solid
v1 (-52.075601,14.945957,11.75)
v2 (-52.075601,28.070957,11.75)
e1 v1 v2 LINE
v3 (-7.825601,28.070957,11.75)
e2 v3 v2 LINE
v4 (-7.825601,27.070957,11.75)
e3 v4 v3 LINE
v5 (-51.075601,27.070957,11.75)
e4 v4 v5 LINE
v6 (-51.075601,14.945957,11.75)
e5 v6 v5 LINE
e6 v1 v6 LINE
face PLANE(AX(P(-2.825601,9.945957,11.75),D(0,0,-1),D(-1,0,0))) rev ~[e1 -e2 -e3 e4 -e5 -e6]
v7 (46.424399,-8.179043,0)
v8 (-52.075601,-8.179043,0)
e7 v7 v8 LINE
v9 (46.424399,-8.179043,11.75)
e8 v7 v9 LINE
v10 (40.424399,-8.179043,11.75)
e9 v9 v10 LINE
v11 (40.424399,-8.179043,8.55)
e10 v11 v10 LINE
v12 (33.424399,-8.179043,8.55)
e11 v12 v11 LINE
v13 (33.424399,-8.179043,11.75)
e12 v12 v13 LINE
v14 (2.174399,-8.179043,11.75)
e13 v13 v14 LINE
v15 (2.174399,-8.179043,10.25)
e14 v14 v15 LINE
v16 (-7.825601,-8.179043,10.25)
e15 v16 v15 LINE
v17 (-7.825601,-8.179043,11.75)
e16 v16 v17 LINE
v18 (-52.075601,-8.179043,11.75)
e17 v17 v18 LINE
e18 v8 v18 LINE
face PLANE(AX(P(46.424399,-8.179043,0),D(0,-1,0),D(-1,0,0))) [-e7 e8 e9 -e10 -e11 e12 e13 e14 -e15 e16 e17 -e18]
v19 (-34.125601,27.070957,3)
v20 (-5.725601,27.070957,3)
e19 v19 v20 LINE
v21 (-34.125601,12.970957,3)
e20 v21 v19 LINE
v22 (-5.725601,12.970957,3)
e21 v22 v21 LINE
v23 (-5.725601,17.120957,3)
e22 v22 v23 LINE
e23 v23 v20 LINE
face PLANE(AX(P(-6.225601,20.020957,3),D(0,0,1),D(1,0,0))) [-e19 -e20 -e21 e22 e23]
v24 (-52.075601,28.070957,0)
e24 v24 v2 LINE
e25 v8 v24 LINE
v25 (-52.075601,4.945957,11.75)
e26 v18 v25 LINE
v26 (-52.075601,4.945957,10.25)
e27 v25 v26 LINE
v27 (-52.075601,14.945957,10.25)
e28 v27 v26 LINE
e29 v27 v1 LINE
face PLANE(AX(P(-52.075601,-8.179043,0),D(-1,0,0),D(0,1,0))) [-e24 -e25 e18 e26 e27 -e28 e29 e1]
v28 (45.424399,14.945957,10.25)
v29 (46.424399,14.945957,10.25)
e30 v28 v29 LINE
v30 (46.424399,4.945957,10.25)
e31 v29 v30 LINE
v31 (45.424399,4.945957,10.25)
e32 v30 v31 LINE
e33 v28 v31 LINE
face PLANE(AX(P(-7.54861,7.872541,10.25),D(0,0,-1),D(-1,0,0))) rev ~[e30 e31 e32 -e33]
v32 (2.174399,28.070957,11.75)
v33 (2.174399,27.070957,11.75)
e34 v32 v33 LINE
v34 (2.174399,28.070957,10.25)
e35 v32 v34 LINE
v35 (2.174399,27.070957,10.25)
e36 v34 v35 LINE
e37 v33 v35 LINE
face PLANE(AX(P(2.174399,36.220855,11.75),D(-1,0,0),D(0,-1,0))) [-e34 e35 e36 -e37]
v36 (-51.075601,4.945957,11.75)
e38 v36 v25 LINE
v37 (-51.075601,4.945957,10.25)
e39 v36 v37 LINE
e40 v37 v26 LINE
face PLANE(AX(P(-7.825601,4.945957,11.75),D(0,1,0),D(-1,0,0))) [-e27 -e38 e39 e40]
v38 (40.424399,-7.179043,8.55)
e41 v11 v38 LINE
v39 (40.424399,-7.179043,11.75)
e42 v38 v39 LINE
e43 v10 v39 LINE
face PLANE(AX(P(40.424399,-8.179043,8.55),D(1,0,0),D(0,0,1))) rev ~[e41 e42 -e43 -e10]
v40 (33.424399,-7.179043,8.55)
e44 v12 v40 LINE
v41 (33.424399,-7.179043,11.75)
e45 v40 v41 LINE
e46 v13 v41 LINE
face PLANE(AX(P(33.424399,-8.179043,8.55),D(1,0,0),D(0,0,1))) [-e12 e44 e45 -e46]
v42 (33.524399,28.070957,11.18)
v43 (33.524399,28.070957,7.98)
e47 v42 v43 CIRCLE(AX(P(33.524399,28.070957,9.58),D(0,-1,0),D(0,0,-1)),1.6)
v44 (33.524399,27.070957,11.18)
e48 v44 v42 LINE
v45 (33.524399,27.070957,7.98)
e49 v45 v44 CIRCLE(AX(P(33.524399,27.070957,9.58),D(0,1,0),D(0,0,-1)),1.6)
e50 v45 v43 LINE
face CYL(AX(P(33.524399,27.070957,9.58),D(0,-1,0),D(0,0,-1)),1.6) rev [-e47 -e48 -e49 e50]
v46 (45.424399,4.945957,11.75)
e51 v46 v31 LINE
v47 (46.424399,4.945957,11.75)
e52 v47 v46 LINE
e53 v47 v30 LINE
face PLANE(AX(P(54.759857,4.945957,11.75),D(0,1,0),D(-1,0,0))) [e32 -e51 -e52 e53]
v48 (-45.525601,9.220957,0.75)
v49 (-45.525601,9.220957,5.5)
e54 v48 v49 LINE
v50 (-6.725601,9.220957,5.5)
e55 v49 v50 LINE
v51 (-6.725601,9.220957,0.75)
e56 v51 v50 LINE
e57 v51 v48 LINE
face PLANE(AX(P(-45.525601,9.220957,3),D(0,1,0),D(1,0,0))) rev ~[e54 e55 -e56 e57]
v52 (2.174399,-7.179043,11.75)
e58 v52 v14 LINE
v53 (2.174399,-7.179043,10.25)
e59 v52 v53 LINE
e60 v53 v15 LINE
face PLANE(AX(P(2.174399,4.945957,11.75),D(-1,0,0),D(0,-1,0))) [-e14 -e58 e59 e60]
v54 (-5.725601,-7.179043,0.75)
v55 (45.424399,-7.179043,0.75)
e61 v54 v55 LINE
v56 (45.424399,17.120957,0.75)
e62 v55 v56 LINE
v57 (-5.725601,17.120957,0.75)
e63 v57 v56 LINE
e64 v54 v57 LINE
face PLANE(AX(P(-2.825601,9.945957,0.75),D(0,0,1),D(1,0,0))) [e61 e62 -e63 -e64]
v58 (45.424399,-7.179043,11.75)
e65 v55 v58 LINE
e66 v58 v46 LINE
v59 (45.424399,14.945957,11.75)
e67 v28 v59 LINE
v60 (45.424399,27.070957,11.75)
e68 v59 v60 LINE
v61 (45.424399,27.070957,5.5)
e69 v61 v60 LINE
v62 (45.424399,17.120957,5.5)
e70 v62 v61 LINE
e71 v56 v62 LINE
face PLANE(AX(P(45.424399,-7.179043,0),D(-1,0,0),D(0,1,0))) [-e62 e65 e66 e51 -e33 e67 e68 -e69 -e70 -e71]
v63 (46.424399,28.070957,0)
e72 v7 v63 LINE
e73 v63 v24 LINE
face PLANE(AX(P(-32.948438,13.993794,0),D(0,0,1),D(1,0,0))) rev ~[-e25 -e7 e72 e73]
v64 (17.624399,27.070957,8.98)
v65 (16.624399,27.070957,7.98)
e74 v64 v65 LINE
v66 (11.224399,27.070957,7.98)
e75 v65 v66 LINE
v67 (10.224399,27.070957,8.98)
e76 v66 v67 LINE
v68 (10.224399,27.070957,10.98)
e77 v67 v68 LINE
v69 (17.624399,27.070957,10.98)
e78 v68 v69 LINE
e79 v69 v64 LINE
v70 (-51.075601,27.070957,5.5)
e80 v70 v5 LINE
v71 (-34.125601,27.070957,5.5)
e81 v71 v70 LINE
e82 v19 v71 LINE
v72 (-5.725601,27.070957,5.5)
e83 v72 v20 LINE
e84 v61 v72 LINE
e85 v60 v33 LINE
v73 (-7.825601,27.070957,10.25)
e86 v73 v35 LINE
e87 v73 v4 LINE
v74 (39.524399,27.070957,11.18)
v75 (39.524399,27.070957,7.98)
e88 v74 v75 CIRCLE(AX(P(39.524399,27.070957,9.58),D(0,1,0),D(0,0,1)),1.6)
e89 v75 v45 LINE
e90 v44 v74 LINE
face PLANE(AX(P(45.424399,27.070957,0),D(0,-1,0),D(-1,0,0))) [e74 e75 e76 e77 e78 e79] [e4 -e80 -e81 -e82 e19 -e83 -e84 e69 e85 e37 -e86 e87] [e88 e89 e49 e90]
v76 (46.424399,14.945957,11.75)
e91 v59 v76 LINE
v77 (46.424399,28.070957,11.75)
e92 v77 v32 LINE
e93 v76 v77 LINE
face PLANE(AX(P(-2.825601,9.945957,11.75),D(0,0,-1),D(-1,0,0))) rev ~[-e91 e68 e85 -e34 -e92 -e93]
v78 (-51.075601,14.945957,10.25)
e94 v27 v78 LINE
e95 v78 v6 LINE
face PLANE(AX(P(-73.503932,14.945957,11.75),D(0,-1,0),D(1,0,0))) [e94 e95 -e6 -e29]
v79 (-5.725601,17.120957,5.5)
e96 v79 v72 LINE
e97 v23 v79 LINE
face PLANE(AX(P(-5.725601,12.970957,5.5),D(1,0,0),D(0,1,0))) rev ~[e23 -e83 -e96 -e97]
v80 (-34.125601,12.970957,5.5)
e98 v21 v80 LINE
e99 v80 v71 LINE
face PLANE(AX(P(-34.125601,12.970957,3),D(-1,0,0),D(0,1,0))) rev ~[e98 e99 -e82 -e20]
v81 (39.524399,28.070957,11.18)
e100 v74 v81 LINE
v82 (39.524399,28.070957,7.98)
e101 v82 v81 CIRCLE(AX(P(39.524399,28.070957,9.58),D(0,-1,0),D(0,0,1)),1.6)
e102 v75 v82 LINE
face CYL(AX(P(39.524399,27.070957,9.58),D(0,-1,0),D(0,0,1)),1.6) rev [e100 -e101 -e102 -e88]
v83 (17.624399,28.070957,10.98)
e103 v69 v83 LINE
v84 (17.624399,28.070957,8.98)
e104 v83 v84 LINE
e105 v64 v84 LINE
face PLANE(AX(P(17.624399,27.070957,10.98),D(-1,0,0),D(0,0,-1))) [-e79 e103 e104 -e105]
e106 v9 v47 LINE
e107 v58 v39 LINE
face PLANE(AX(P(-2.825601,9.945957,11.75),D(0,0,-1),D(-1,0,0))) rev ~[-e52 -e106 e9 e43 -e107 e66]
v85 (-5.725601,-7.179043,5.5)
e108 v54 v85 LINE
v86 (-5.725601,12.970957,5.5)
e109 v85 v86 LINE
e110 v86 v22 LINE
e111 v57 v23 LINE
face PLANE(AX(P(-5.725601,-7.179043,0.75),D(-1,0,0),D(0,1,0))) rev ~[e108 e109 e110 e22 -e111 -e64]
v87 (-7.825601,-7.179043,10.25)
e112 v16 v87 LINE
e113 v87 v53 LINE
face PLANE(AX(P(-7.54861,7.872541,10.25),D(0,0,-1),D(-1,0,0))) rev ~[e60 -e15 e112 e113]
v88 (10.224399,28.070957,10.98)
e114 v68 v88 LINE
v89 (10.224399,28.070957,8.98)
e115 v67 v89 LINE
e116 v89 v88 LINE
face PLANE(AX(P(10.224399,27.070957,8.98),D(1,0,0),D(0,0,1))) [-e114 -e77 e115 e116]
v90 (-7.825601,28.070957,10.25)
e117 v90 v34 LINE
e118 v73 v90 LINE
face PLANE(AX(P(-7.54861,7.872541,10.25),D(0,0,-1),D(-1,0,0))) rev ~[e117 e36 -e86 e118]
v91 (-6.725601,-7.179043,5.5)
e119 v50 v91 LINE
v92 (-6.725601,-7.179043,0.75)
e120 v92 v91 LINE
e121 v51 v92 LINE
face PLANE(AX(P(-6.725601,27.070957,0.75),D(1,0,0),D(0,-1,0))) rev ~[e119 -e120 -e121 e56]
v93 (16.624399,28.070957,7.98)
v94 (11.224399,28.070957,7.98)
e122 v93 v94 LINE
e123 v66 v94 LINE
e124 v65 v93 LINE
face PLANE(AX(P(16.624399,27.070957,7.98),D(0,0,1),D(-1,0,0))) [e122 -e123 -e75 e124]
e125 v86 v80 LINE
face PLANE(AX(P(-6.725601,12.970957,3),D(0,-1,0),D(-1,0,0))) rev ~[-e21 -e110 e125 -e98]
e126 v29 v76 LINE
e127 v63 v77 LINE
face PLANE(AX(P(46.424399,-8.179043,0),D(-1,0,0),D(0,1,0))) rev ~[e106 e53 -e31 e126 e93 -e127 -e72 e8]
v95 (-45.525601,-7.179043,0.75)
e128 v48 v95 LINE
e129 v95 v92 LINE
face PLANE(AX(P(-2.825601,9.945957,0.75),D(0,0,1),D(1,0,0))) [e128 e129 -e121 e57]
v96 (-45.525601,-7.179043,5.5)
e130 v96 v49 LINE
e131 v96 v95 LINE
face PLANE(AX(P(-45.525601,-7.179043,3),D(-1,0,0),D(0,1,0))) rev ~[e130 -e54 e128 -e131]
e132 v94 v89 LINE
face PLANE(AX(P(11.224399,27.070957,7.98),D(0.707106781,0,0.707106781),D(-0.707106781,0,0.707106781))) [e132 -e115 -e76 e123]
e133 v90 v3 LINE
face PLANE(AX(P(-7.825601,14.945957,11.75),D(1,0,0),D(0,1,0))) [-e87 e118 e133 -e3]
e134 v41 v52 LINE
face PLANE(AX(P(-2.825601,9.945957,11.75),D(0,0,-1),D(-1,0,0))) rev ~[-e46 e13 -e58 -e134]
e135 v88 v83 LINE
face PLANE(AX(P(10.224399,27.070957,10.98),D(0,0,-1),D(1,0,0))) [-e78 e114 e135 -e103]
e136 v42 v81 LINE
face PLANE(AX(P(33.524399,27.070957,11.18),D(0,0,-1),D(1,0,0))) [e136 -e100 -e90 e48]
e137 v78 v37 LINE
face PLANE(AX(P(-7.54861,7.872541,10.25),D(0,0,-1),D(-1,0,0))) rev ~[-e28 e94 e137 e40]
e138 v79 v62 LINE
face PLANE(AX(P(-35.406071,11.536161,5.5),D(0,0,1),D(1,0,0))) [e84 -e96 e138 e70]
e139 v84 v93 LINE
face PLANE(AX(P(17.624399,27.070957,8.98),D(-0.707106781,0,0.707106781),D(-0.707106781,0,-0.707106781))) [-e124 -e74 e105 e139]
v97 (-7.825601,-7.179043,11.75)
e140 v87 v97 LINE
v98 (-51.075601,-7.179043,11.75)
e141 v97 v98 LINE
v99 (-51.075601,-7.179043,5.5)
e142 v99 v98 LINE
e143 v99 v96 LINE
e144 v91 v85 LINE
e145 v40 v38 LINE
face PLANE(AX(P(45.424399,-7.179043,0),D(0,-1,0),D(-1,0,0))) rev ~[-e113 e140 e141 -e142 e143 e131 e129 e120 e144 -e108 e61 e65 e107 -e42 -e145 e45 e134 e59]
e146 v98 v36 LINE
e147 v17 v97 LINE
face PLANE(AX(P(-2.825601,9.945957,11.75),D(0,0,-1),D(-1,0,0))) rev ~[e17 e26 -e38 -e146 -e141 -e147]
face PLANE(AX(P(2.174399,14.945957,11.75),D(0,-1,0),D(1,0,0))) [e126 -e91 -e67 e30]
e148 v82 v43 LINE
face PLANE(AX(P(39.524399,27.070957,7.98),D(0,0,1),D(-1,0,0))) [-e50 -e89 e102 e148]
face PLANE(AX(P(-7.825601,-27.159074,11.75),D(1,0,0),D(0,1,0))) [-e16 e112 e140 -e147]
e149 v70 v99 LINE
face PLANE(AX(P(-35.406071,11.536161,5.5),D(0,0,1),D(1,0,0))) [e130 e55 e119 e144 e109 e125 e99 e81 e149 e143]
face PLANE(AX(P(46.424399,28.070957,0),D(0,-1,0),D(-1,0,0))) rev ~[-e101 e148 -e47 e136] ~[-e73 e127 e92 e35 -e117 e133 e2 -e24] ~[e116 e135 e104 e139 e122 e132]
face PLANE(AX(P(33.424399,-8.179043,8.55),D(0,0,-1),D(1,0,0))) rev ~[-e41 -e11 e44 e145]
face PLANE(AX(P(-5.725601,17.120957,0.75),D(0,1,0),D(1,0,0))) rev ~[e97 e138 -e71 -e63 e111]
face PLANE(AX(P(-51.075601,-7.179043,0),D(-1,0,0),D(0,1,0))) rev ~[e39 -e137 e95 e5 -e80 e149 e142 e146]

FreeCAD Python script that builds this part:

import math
import FreeCAD as App
import Part
import Sketcher
Q = App.Units.Quantity

doc = App.newDocument("Part")
params = doc.addObject("Spreadsheet::Sheet", "Params")
for row, (alias, value) in enumerate([
    ("sketch1_width", "96.5 mm"),
    ("sketch1_height", "34.25 mm"),
    ("pad1_length", "0.75 mm"),
    ("sketch2_width", "98.5 mm"),
    ("sketch2_width2", "96.5 mm"),
    ("sketch2_height", "36.25 mm"),
    ("pad2_length", "11.75 mm"),
    ("sketch3_width", "1 mm"),
    ("sketch3_height", "24.3 mm"),
    ("sketch3_width2", "51.15 mm"),
    ("sketch3_height2", "9.95 mm"),
    ("pad3_length", "4.75 mm"),
    ("sketch4_width", "38.8 mm"),
    ("sketch4_height", "16.4 mm"),
    ("sketch4_width2", "44.35 mm"),
    ("sketch4_height2", "17.85 mm"),
    ("pad4_length", "3 mm"),
    ("sketch5_width", "38.8 mm"),
    ("sketch5_width2", "27.4 mm"),
    ("sketch5_height", "16.4 mm"),
    ("sketch5_height2", "14.1 mm"),
    ("sketch5_width3", "16.95 mm"),
    ("pad5_length", "2.5 mm"),
    ("sketch6_width", "1 mm"),
    ("sketch6_height", "14.1 mm"),
    ("pocket1_length", "2.5 mm"),
    ("sketch7_radius", "1.6 mm"),
    ("sketch7_width", "6 mm"),
    ("sketch7_height", "2 mm"),
    ("sketch7_width2", "7.4 mm"),
    ("sketch7_width3", "5.4 mm"),
    ("pocket2_length", "2.5 mm"),
    ("sketch8_width", "10 mm"),
    ("pocket3_length", "1.5 mm"),
    ("sketch9_width", "7 mm"),
    ("sketch9_height", "3.2 mm"),
    ("pocket4_length", "10 mm"),
], start=1):
    params.set(f"A{row}", alias)
    params.set(f"B{row}", "=" + value)
    params.setAlias(f"B{row}", alias)

body = doc.addObject("PartDesign::Body", "Body")

sketch1 = body.newObject("Sketcher::SketchObject", "Sketch")
sketch1.AttachmentSupport = (doc.getObject("XY_Plane"), [""])
sketch1.MapMode = "FlatFace"
sketch1.addGeometry(Part.LineSegment(App.Vector(-51, 27, 0), App.Vector(-51, -7, 0)), False)
sketch1.addGeometry(Part.LineSegment(App.Vector(-51, -7, 0), App.Vector(45, -7, 0)), False)
sketch1.addGeometry(Part.LineSegment(App.Vector(45, -7, 0), App.Vector(45, 27, 0)), False)
sketch1.addGeometry(Part.LineSegment(App.Vector(45, 27, 0), App.Vector(-51, 27, 0)), False)
sketch1.addConstraint(Sketcher.Constraint("Coincident", 0, 2, 1, 1))
sketch1.addConstraint(Sketcher.Constraint("Coincident", 1, 2, 2, 1))
sketch1.addConstraint(Sketcher.Constraint("Coincident", 2, 2, 3, 1))
sketch1.addConstraint(Sketcher.Constraint("Coincident", 3, 2, 0, 1))
sketch1.addConstraint(Sketcher.Constraint("Vertical", 0))
sketch1.addConstraint(Sketcher.Constraint("Horizontal", 1))
sketch1.addConstraint(Sketcher.Constraint("Vertical", 2))
sketch1.addConstraint(Sketcher.Constraint("Horizontal", 3))
sketch1.addConstraint(Sketcher.Constraint("DistanceX", 1, 1, 1, 2, Q("96.5 mm")))
sketch1.addConstraint(Sketcher.Constraint("DistanceY", 0, 2, 0, 1, Q("34.25 mm")))
sketch1.addConstraint(Sketcher.Constraint("DistanceX", 0, 2, -1, 1, Q("51.075601 mm")))
sketch1.addConstraint(Sketcher.Constraint("DistanceY", 0, 2, -1, 1, Q("7.179043 mm")))
sketch1.setExpression("Constraints[8]", "Params.sketch1_width")
sketch1.setExpression("Constraints[9]", "Params.sketch1_height")
pad1 = body.newObject("PartDesign::Pad", "Pad")
pad1.Profile = sketch1
pad1.setExpression("Length", "Params.pad1_length")

sketch2 = body.newObject("Sketcher::SketchObject", "Sketch001")
sketch2.AttachmentSupport = (doc.getObject("XY_Plane"), [""])
sketch2.MapMode = "FlatFace"
sketch2.addGeometry(Part.LineSegment(App.Vector(46, 28, 0), App.Vector(46, -8, 0)), False)
sketch2.addGeometry(Part.LineSegment(App.Vector(46, -8, 0), App.Vector(-52, -8, 0)), False)
sketch2.addGeometry(Part.LineSegment(App.Vector(-52, -8, 0), App.Vector(-52, 28, 0)), False)
sketch2.addGeometry(Part.LineSegment(App.Vector(-52, 28, 0), App.Vector(46, 28, 0)), False)
sketch2.addGeometry(Part.LineSegment(App.Vector(-51, -7, 0), App.Vector(45, -7, 0)), False)
sketch2.addGeometry(Part.LineSegment(App.Vector(45, -7, 0), App.Vector(45, 27, 0)), False)
sketch2.addGeometry(Part.LineSegment(App.Vector(45, 27, 0), App.Vector(-51, 27, 0)), False)
sketch2.addGeometry(Part.LineSegment(App.Vector(-51, 27, 0), App.Vector(-51, -7, 0)), False)
sketch2.addConstraint(Sketcher.Constraint("Coincident", 0, 2, 1, 1))
sketch2.addConstraint(Sketcher.Constraint("Coincident", 1, 2, 2, 1))
sketch2.addConstraint(Sketcher.Constraint("Coincident", 2, 2, 3, 1))
sketch2.addConstraint(Sketcher.Constraint("Coincident", 3, 2, 0, 1))
sketch2.addConstraint(Sketcher.Constraint("Coincident", 4, 2, 5, 1))
sketch2.addConstraint(Sketcher.Constraint("Coincident", 5, 2, 6, 1))
sketch2.addConstraint(Sketcher.Constraint("Coincident", 6, 2, 7, 1))
sketch2.addConstraint(Sketcher.Constraint("Coincident", 7, 2, 4, 1))
sketch2.addConstraint(Sketcher.Constraint("Vertical", 0))
sketch2.addConstraint(Sketcher.Constraint("Horizontal", 1))
sketch2.addConstraint(Sketcher.Constraint("Vertical", 2))
sketch2.addConstraint(Sketcher.Constraint("Horizontal", 3))
sketch2.addConstraint(Sketcher.Constraint("Horizontal", 4))
sketch2.addConstraint(Sketcher.Constraint("Vertical", 5))
sketch2.addConstraint(Sketcher.Constraint("Horizontal", 6))
sketch2.addConstraint(Sketcher.Constraint("Vertical", 7))
sketch2.addConstraint(Sketcher.Constraint("DistanceX", 1, 2, 1, 1, Q("98.5 mm")))
sketch2.addConstraint(Sketcher.Constraint("DistanceX", 4, 1, 4, 2, Q("96.5 mm")))
sketch2.addConstraint(Sketcher.Constraint("DistanceX", 4, 2, 0, 2, Q("1 mm")))
sketch2.addConstraint(Sketcher.Constraint("DistanceY", 0, 2, 4, 2, Q("1 mm")))
sketch2.addConstraint(Sketcher.Constraint("DistanceY", 5, 2, 3, 2, Q("1 mm")))
sketch2.addConstraint(Sketcher.Constraint("DistanceY", 0, 2, 0, 1, Q("36.25 mm")))
sketch2.addConstraint(Sketcher.Constraint("DistanceX", -1, 1, 0, 2, Q("46.424399 mm")))
sketch2.addConstraint(Sketcher.Constraint("DistanceY", 0, 2, -1, 1, Q("8.179043 mm")))
sketch2.setExpression("Constraints[16]", "Params.sketch2_width")
sketch2.setExpression("Constraints[17]", "Params.sketch2_width2")
sketch2.setExpression("Constraints[21]", "Params.sketch2_height")
pad2 = body.newObject("PartDesign::Pad", "Pad001")
pad2.Profile = sketch2
pad2.setExpression("Length", "Params.pad2_length")

sketch3 = body.newObject("Sketcher::SketchObject", "Sketch002")
sketch3.AttachmentSupport = (doc.getObject("XY_Plane"), [""])
sketch3.MapMode = "FlatFace"
sketch3.AttachmentOffset = App.Placement(App.Vector(0, 0, 0.75), App.Rotation())
sketch3.addGeometry(Part.LineSegment(App.Vector(-5.7, -7.2, 0), App.Vector(-5.7, 17.1, 0)), False)
sketch3.addGeometry(Part.LineSegment(App.Vector(-5.7, 17.1, 0), App.Vector(45.4, 17.1, 0)), False)
sketch3.addGeometry(Part.LineSegment(App.Vector(45.4, 17.1, 0), App.Vector(45.4, 27.1, 0)), False)
sketch3.addGeometry(Part.LineSegment(App.Vector(45.4, 27.1, 0), App.Vector(-6.7, 27.1, 0)), False)
sketch3.addGeometry(Part.LineSegment(App.Vector(-6.7, 27.1, 0), App.Vector(-6.7, -7.2, 0)), False)
sketch3.addGeometry(Part.LineSegment(App.Vector(-6.7, -7.2, 0), App.Vector(-5.7, -7.2, 0)), False)
sketch3.addConstraint(Sketcher.Constraint("Coincident", 0, 2, 1, 1))
sketch3.addConstraint(Sketcher.Constraint("Coincident", 1, 2, 2, 1))
sketch3.addConstraint(Sketcher.Constraint("Coincident", 2, 2, 3, 1))
sketch3.addConstraint(Sketcher.Constraint("Coincident", 3, 2, 4, 1))
sketch3.addConstraint(Sketcher.Constraint("Coincident", 4, 2, 5, 1))
sketch3.addConstraint(Sketcher.Constraint("Coincident", 5, 2, 0, 1))
sketch3.addConstraint(Sketcher.Constraint("Vertical", 0))
sketch3.addConstraint(Sketcher.Constraint("Horizontal", 1))
sketch3.addConstraint(Sketcher.Constraint("Vertical", 2))
sketch3.addConstraint(Sketcher.Constraint("Horizontal", 3))
sketch3.addConstraint(Sketcher.Constraint("Vertical", 4))
sketch3.addConstraint(Sketcher.Constraint("Horizontal", 5))
sketch3.addConstraint(Sketcher.Constraint("DistanceX", 5, 1, 5, 2, Q("1 mm")))
sketch3.addConstraint(Sketcher.Constraint("DistanceY", 0, 1, 0, 2, Q("24.3 mm")))
sketch3.addConstraint(Sketcher.Constraint("DistanceX", 1, 1, 1, 2, Q("51.15 mm")))
sketch3.addConstraint(Sketcher.Constraint("DistanceY", 2, 1, 2, 2, Q("9.95 mm")))
sketch3.addConstraint(Sketcher.Constraint("DistanceX", 0, 2, -1, 1, Q("5.725601 mm")))
sketch3.addConstraint(Sketcher.Constraint("DistanceY", -1, 1, 0, 2, Q("17.120957 mm")))
sketch3.setExpression("Constraints[12]", "Params.sketch3_width")
sketch3.setExpression("Constraints[13]", "Params.sketch3_height")
sketch3.setExpression("Constraints[14]", "Params.sketch3_width2")
sketch3.setExpression("Constraints[15]", "Params.sketch3_height2")
pad3 = body.newObject("PartDesign::Pad", "Pad002")
pad3.Profile = sketch3
pad3.setExpression("Length", "Params.pad3_length")

sketch4 = body.newObject("Sketcher::SketchObject", "Sketch003")
sketch4.AttachmentSupport = (doc.getObject("XY_Plane"), [""])
sketch4.MapMode = "FlatFace"
sketch4.addGeometry(Part.LineSegment(App.Vector(-7, 9, 0), App.Vector(-7, 27, 0)), False)
sketch4.addGeometry(Part.LineSegment(App.Vector(-7, 27, 0), App.Vector(-51, 27, 0)), False)
sketch4.addGeometry(Part.LineSegment(App.Vector(-51, 27, 0), App.Vector(-51, -7, 0)), False)
sketch4.addGeometry(Part.LineSegment(App.Vector(-51, -7, 0), App.Vector(-46, -7, 0)), False)
sketch4.addGeometry(Part.LineSegment(App.Vector(-46, -7, 0), App.Vector(-46, 9, 0)), False)
sketch4.addGeometry(Part.LineSegment(App.Vector(-46, 9, 0), App.Vector(-7, 9, 0)), False)
sketch4.addConstraint(Sketcher.Constraint("Coincident", 0, 2, 1, 1))
sketch4.addConstraint(Sketcher.Constraint("Coincident", 1, 2, 2, 1))
sketch4.addConstraint(Sketcher.Constraint("Coincident", 2, 2, 3, 1))
sketch4.addConstraint(Sketcher.Constraint("Coincident", 3, 2, 4, 1))
sketch4.addConstraint(Sketcher.Constraint("Coincident", 4, 2, 5, 1))
sketch4.addConstraint(Sketcher.Constraint("Coincident", 5, 2, 0, 1))
sketch4.addConstraint(Sketcher.Constraint("Vertical", 0))
sketch4.addConstraint(Sketcher.Constraint("Horizontal", 1))
sketch4.addConstraint(Sketcher.Constraint("Vertical", 2))
sketch4.addConstraint(Sketcher.Constraint("Horizontal", 3))
sketch4.addConstraint(Sketcher.Constraint("Vertical", 4))
sketch4.addConstraint(Sketcher.Constraint("Horizontal", 5))
sketch4.addConstraint(Sketcher.Constraint("DistanceX", 5, 1, 5, 2, Q("38.8 mm")))
sketch4.addConstraint(Sketcher.Constraint("DistanceY", 4, 1, 4, 2, Q("16.4 mm")))
sketch4.addConstraint(Sketcher.Constraint("DistanceX", 1, 2, 1, 1, Q("44.35 mm")))
sketch4.addConstraint(Sketcher.Constraint("DistanceY", 0, 1, 0, 2, Q("17.85 mm")))
sketch4.addConstraint(Sketcher.Constraint("DistanceX", 0, 2, -1, 1, Q("6.725601 mm")))
sketch4.addConstraint(Sketcher.Constraint("DistanceY", -1, 1, 0, 2, Q("27.070957 mm")))
sketch4.setExpression("Constraints[12]", "Params.sketch4_width")
sketch4.setExpression("Constraints[13]", "Params.sketch4_height")
sketch4.setExpression("Constraints[14]", "Params.sketch4_width2")
sketch4.setExpression("Constraints[15]", "Params.sketch4_height2")
pad4 = body.newObject("PartDesign::Pad", "Pad003")
pad4.Profile = sketch4
pad4.setExpression("Length", "Params.pad4_length")

sketch5 = body.newObject("Sketcher::SketchObject", "Sketch004")
sketch5.AttachmentSupport = (doc.getObject("XY_Plane"), [""])
sketch5.MapMode = "FlatFace"
sketch5.AttachmentOffset = App.Placement(App.Vector(0, 0, 3), App.Rotation())
sketch5.addGeometry(Part.LineSegment(App.Vector(-34.1, 27.1, 0), App.Vector(-51.1, 27.1, 0)), False)
sketch5.addGeometry(Part.LineSegment(App.Vector(-51.1, 27.1, 0), App.Vector(-51.1, -7.2, 0)), False)
sketch5.addGeometry(Part.LineSegment(App.Vector(-51.1, -7.2, 0), App.Vector(-45.5, -7.2, 0)), False)
sketch5.addGeometry(Part.LineSegment(App.Vector(-45.5, -7.2, 0), App.Vector(-45.5, 9.2, 0)), False)
sketch5.addGeometry(Part.LineSegment(App.Vector(-45.5, 9.2, 0), App.Vector(-6.7, 9.2, 0)), False)
sketch5.addGeometry(Part.LineSegment(App.Vector(-6.7, 9.2, 0), App.Vector(-6.7, 13, 0)), False)
sketch5.addGeometry(Part.LineSegment(App.Vector(-6.7, 13, 0), App.Vector(-34.1, 13, 0)), False)
sketch5.addGeometry(Part.LineSegment(App.Vector(-34.1, 13, 0), App.Vector(-34.1, 27.1, 0)), False)
sketch5.addConstraint(Sketcher.Constraint("Coincident", 0, 2, 1, 1))
sketch5.addConstraint(Sketcher.Constraint("Coincident", 1, 2, 2, 1))
sketch5.addConstraint(Sketcher.Constraint("Coincident", 2, 2, 3, 1))
sketch5.addConstraint(Sketcher.Constraint("Coincident", 3, 2, 4, 1))
sketch5.addConstraint(Sketcher.Constraint("Coincident", 4, 2, 5, 1))
sketch5.addConstraint(Sketcher.Constraint("Coincident", 5, 2, 6, 1))
sketch5.addConstraint(Sketcher.Constraint("Coincident", 6, 2, 7, 1))
sketch5.addConstraint(Sketcher.Constraint("Coincident", 7, 2, 0, 1))
sketch5.addConstraint(Sketcher.Constraint("Horizontal", 0))
sketch5.addConstraint(Sketcher.Constraint("Vertical", 1))
sketch5.addConstraint(Sketcher.Constraint("Horizontal", 2))
sketch5.addConstraint(Sketcher.Constraint("Vertical", 3))
sketch5.addConstraint(Sketcher.Constraint("Horizontal", 4))
sketch5.addConstraint(Sketcher.Constraint("Vertical", 5))
sketch5.addConstraint(Sketcher.Constraint("Horizontal", 6))
sketch5.addConstraint(Sketcher.Constraint("Vertical", 7))
sketch5.addConstraint(Sketcher.Constraint("DistanceX", 4, 1, 4, 2, Q("38.8 mm")))
sketch5.addConstraint(Sketcher.Constraint("DistanceX", 6, 2, 6, 1, Q("27.4 mm")))
sketch5.addConstraint(Sketcher.Constraint("DistanceY", 3, 1, 3, 2, Q("16.4 mm")))
sketch5.addConstraint(Sketcher.Constraint("DistanceY", 7, 1, 7, 2, Q("14.1 mm")))
sketch5.addConstraint(Sketcher.Constraint("DistanceX", 0, 2, 0, 1, Q("16.95 mm")))
sketch5.addConstraint(Sketcher.Constraint("DistanceY", 1, 2, 1, 1, Q("34.25 mm")))
sketch5.addConstraint(Sketcher.Constraint("DistanceX", 0, 2, -1, 1, Q("51.075601 mm")))
sketch5.addConstraint(Sketcher.Constraint("DistanceY", -1, 1, 0, 2, Q("27.070957 mm")))
sketch5.setExpression("Constraints[16]", "Params.sketch5_width")
sketch5.setExpression("Constraints[17]", "Params.sketch5_width2")
sketch5.setExpression("Constraints[18]", "Params.sketch5_height")
sketch5.setExpression("Constraints[19]", "Params.sketch5_height2")
sketch5.setExpression("Constraints[20]", "Params.sketch5_width3")
pad5 = body.newObject("PartDesign::Pad", "Pad004")
pad5.Profile = sketch5
pad5.setExpression("Length", "Params.pad5_length")

sketch6 = body.newObject("Sketcher::SketchObject", "Sketch005")
sketch6.AttachmentSupport = (doc.getObject("XY_Plane"), [""])
sketch6.MapMode = "FlatFace"
sketch6.AttachmentOffset = App.Placement(App.Vector(0, 0, 5.5), App.Rotation())
sketch6.addGeometry(Part.LineSegment(App.Vector(-6.7, 27.1, 0), App.Vector(-6.7, 13, 0)), False)
sketch6.addGeometry(Part.LineSegment(App.Vector(-6.7, 13, 0), App.Vector(-5.7, 13, 0)), False)
sketch6.addGeometry(Part.LineSegment(App.Vector(-5.7, 13, 0), App.Vector(-5.7, 27.1, 0)), False)
sketch6.addGeometry(Part.LineSegment(App.Vector(-5.7, 27.1, 0), App.Vector(-6.7, 27.1, 0)), False)
sketch6.addConstraint(Sketcher.Constraint("Coincident", 0, 2, 1, 1))
sketch6.addConstraint(Sketcher.Constraint("Coincident", 1, 2, 2, 1))
sketch6.addConstraint(Sketcher.Constraint("Coincident", 2, 2, 3, 1))
sketch6.addConstraint(Sketcher.Constraint("Coincident", 3, 2, 0, 1))
sketch6.addConstraint(Sketcher.Constraint("Vertical", 0))
sketch6.addConstraint(Sketcher.Constraint("Horizontal", 1))
sketch6.addConstraint(Sketcher.Constraint("Vertical", 2))
sketch6.addConstraint(Sketcher.Constraint("Horizontal", 3))
sketch6.addConstraint(Sketcher.Constraint("DistanceX", 1, 1, 1, 2, Q("1 mm")))
sketch6.addConstraint(Sketcher.Constraint("DistanceY", 0, 2, 0, 1, Q("14.1 mm")))
sketch6.addConstraint(Sketcher.Constraint("DistanceX", 0, 2, -1, 1, Q("6.725601 mm")))
sketch6.addConstraint(Sketcher.Constraint("DistanceY", -1, 1, 0, 2, Q("12.970957 mm")))
sketch6.setExpression("Constraints[8]", "Params.sketch6_width")
sketch6.setExpression("Constraints[9]", "Params.sketch6_height")
pocket1 = body.newObject("PartDesign::Pocket", "Pocket")
pocket1.Profile = sketch6
pocket1.setExpression("Length", "Params.pocket1_length")

sketch7 = body.newObject("Sketcher::SketchObject", "Sketch006")
sketch7.AttachmentSupport = (doc.getObject("XZ_Plane"), [""])
sketch7.MapMode = "FlatFace"
sketch7.AttachmentOffset = App.Placement(App.Vector(0, 0, -27.070957), App.Rotation())
sketch7.addGeometry(Part.LineSegment(App.Vector(17.6, 11, 0), App.Vector(10.2, 11, 0)), False)
sketch7.addGeometry(Part.LineSegment(App.Vector(10.2, 11, 0), App.Vector(10.2, 9, 0)), False)
sketch7.addGeometry(Part.LineSegment(App.Vector(10.2, 9, 0), App.Vector(11.2, 8, 0)), False)
sketch7.addGeometry(Part.LineSegment(App.Vector(11.2, 8, 0), App.Vector(16.6, 8, 0)), False)
sketch7.addGeometry(Part.LineSegment(App.Vector(16.6, 8, 0), App.Vector(17.6, 9, 0)), False)
sketch7.addGeometry(Part.LineSegment(App.Vector(17.6, 9, 0), App.Vector(17.6, 11, 0)), False)
sketch7.addGeometry(Part.LineSegment(App.Vector(39.5, 11.2, 0), App.Vector(33.5, 11.2, 0)), False)
sketch7.addGeometry(Part.ArcOfCircle(Part.Circle(App.Vector(33.5, 9.6, 0), App.Vector(0, 0, 1), 1.6), math.radians(90), math.radians(270)), False)
sketch7.addGeometry(Part.LineSegment(App.Vector(33.5, 8, 0), App.Vector(39.5, 8, 0)), False)
sketch7.addGeometry(Part.ArcOfCircle(Part.Circle(App.Vector(39.5, 9.6, 0), App.Vector(0, 0, 1), 1.6), math.radians(-90), math.radians(90)), False)
sketch7.addConstraint(Sketcher.Constraint("Coincident", 0, 2, 1, 1))
sketch7.addConstraint(Sketcher.Constraint("Coincident", 1, 2, 2, 1))
sketch7.addConstraint(Sketcher.Constraint("Coincident", 2, 2, 3, 1))
sketch7.addConstraint(Sketcher.Constraint("Coincident", 3, 2, 4, 1))
sketch7.addConstraint(Sketcher.Constraint("Coincident", 4, 2, 5, 1))
sketch7.addConstraint(Sketcher.Constraint("Coincident", 5, 2, 0, 1))
sketch7.addConstraint(Sketcher.Constraint("Tangent", 6, 2, 7, 1))
sketch7.addConstraint(Sketcher.Constraint("Tangent", 7, 2, 8, 1))
sketch7.addConstraint(Sketcher.Constraint("Tangent", 8, 2, 9, 1))
sketch7.addConstraint(Sketcher.Constraint("Tangent", 9, 2, 6, 1))
sketch7.addConstraint(Sketcher.Constraint("Horizontal", 0))
sketch7.addConstraint(Sketcher.Constraint("Vertical", 1))
sketch7.addConstraint(Sketcher.Constraint("Horizontal", 3))
sketch7.addConstraint(Sketcher.Constraint("Vertical", 5))
sketch7.addConstraint(Sketcher.Constraint("Horizontal", 6))
sketch7.addConstraint(Sketcher.Constraint("Horizontal", 8))
sketch7.addConstraint(Sketcher.Constraint("Perpendicular", 2, 4))
sketch7.addConstraint(Sketcher.Constraint("Horizontal", 1, 2, 4, 2))
sketch7.addConstraint(Sketcher.Constraint("Horizontal", 3, 2, 7, 2))
sketch7.addConstraint(Sketcher.Constraint("Equal", 2, 4))
sketch7.addConstraint(Sketcher.Constraint("Radius", 7, Q("1.6 mm")))
sketch7.addConstraint(Sketcher.Constraint("DistanceX", 6, 2, 6, 1, Q("6 mm")))
sketch7.addConstraint(Sketcher.Constraint("DistanceY", 1, 2, 1, 1, Q("2 mm")))
sketch7.addConstraint(Sketcher.Constraint("DistanceX", 0, 2, 0, 1, Q("7.4 mm")))
sketch7.addConstraint(Sketcher.Constraint("DistanceX", 3, 1, 3, 2, Q("5.4 mm")))
sketch7.addConstraint(Sketcher.Constraint("DistanceX", 0, 2, 7, 3, Q("23.3 mm")))
sketch7.addConstraint(Sketcher.Constraint("DistanceY", -1, 1, 7, 3, Q("9.58 mm")))
sketch7.addConstraint(Sketcher.Constraint("DistanceX", -1, 1, 7, 3, Q("33.524399 mm")))
sketch7.setExpression("Constraints[20]", "Params.sketch7_radius")
sketch7.setExpression("Constraints[21]", "Params.sketch7_width")
sketch7.setExpression("Constraints[22]", "Params.sketch7_height")
sketch7.setExpression("Constraints[23]", "Params.sketch7_width2")
sketch7.setExpression("Constraints[24]", "Params.sketch7_width3")
pocket2 = body.newObject("PartDesign::Pocket", "Pocket001")
pocket2.Profile = sketch7
pocket2.setExpression("Length", "Params.pocket2_length")

sketch8 = body.newObject("Sketcher::SketchObject", "Sketch007")
sketch8.AttachmentSupport = (doc.getObject("XY_Plane"), [""])
sketch8.MapMode = "FlatFace"
sketch8.AttachmentOffset = App.Placement(App.Vector(0, 0, 11.75), App.Rotation())
sketch8.addGeometry(Part.LineSegment(App.Vector(2, 36, 0), App.Vector(-8, 36, 0)), False)
sketch8.addGeometry(Part.LineSegment(App.Vector(-8, 36, 0), App.Vector(-8, 15, 0)), False)
sketch8.addGeometry(Part.LineSegment(App.Vector(-8, 15, 0), App.Vector(-74, 15, 0)), False)
sketch8.addGeometry(Part.LineSegment(App.Vector(-74, 15, 0), App.Vector(-74, 5, 0)), False)
sketch8.addGeometry(Part.LineSegment(App.Vector(-74, 5, 0), App.Vector(-8, 5, 0)), False)
sketch8.addGeometry(Part.LineSegment(App.Vector(-8, 5, 0), App.Vector(-8, -27, 0)), False)
sketch8.addGeometry(Part.LineSegment(App.Vector(-8, -27, 0), App.Vector(2, -27, 0)), False)
sketch8.addGeometry(Part.LineSegment(App.Vector(2, -27, 0), App.Vector(2, 5, 0)), False)
sketch8.addGeometry(Part.LineSegment(App.Vector(2, 5, 0), App.Vector(55, 5, 0)), False)
sketch8.addGeometry(Part.LineSegment(App.Vector(55, 5, 0), App.Vector(55, 15, 0)), False)
sketch8.addGeometry(Part.LineSegment(App.Vector(55, 15, 0), App.Vector(2, 15, 0)), False)
sketch8.addGeometry(Part.LineSegment(App.Vector(2, 15, 0), App.Vector(2, 36, 0)), False)
sketch8.addConstraint(Sketcher.Constraint("Coincident", 0, 2, 1, 1))
sketch8.addConstraint(Sketcher.Constraint("Coincident", 1, 2, 2, 1))
sketch8.addConstraint(Sketcher.Constraint("Coincident", 2, 2, 3, 1))
sketch8.addConstraint(Sketcher.Constraint("Coincident", 3, 2, 4, 1))
sketch8.addConstraint(Sketcher.Constraint("Coincident", 4, 2, 5, 1))
sketch8.addConstraint(Sketcher.Constraint("Coincident", 5, 2, 6, 1))
sketch8.addConstraint(Sketcher.Constraint("Coincident", 6, 2, 7, 1))
sketch8.addConstraint(Sketcher.Constraint("Coincident", 7, 2, 8, 1))
sketch8.addConstraint(Sketcher.Constraint("Coincident", 8, 2, 9, 1))
sketch8.addConstraint(Sketcher.Constraint("Coincident", 9, 2, 10, 1))
sketch8.addConstraint(Sketcher.Constraint("Coincident", 10, 2, 11, 1))
sketch8.addConstraint(Sketcher.Constraint("Coincident", 11, 2, 0, 1))
sketch8.addConstraint(Sketcher.Constraint("Horizontal", 0))
sketch8.addConstraint(Sketcher.Constraint("Vertical", 1))
sketch8.addConstraint(Sketcher.Constraint("Horizontal", 2))
sketch8.addConstraint(Sketcher.Constraint("Vertical", 3))
sketch8.addConstraint(Sketcher.Constraint("Horizontal", 4))
sketch8.addConstraint(Sketcher.Constraint("Vertical", 5))
sketch8.addConstraint(Sketcher.Constraint("Horizontal", 6))
sketch8.addConstraint(Sketcher.Constraint("Vertical", 7))
sketch8.addConstraint(Sketcher.Constraint("Horizontal", 8))
sketch8.addConstraint(Sketcher.Constraint("Vertical", 9))
sketch8.addConstraint(Sketcher.Constraint("Horizontal", 10))
sketch8.addConstraint(Sketcher.Constraint("Vertical", 11))
sketch8.addConstraint(Sketcher.Constraint("Horizontal", 4, 2, 7, 2))
sketch8.addConstraint(Sketcher.Constraint("Horizontal", 2, 2, 9, 2))
sketch8.addConstraint(Sketcher.Constraint("Vertical", 1, 2, 4, 2))
sketch8.addConstraint(Sketcher.Constraint("Vertical", 7, 2, 10, 2))
sketch8.addConstraint(Sketcher.Constraint("Equal", 6, 3))
sketch8.addConstraint(Sketcher.Constraint("DistanceX", 0, 2, 0, 1, Q("10 mm")))
sketch8.addConstraint(Sketcher.Constraint("DistanceY", 1, 2, 1, 1, Q("21.274898 mm")))
sketch8.addConstraint(Sketcher.Constraint("DistanceX", 2, 2, 2, 1, Q("65.678331 mm")))
sketch8.addConstraint(Sketcher.Constraint("DistanceY", 5, 2, 5, 1, Q("32.105031 mm")))
sketch8.addConstraint(Sketcher.Constraint("DistanceX", 0, 2, -1, 1, Q("7.825601 mm")))
sketch8.addConstraint(Sketcher.Constraint("DistanceX", 8, 1, 8, 2, Q("52.585458 mm")))
sketch8.addConstraint(Sketcher.Constraint("DistanceY", -1, 1, 0, 2, Q("36.220855 mm")))
sketch8.setExpression("Constraints[29]", "Params.sketch8_width")
pocket3 = body.newObject("PartDesign::Pocket", "Pocket002")
pocket3.Profile = sketch8
pocket3.setExpression("Length", "Params.pocket3_length")

sketch9 = body.newObject("Sketcher::SketchObject", "Sketch008")
sketch9.AttachmentSupport = (doc.getObject("XZ_Plane"), [""])
sketch9.MapMode = "FlatFace"
sketch9.AttachmentOffset = App.Placement(App.Vector(0, 0, 8.179043), App.Rotation())
sketch9.addGeometry(Part.LineSegment(App.Vector(33.4, 11.8, 0), App.Vector(33.4, 8.6, 0)), False)
sketch9.addGeometry(Part.LineSegment(App.Vector(33.4, 8.6, 0), App.Vector(40.4, 8.6, 0)), False)
sketch9.addGeometry(Part.LineSegment(App.Vector(40.4, 8.6, 0), App.Vector(40.4, 11.8, 0)), False)
sketch9.addGeometry(Part.LineSegment(App.Vector(40.4, 11.8, 0), App.Vector(33.4, 11.8, 0)), False)
sketch9.addConstraint(Sketcher.Constraint("Coincident", 0, 2, 1, 1))
sketch9.addConstraint(Sketcher.Constraint("Coincident", 1, 2, 2, 1))
sketch9.addConstraint(Sketcher.Constraint("Coincident", 2, 2, 3, 1))
sketch9.addConstraint(Sketcher.Constraint("Coincident", 3, 2, 0, 1))
sketch9.addConstraint(Sketcher.Constraint("Vertical", 0))
sketch9.addConstraint(Sketcher.Constraint("Horizontal", 1))
sketch9.addConstraint(Sketcher.Constraint("Vertical", 2))
sketch9.addConstraint(Sketcher.Constraint("Horizontal", 3))
sketch9.addConstraint(Sketcher.Constraint("DistanceX", 1, 1, 1, 2, Q("7 mm")))
sketch9.addConstraint(Sketcher.Constraint("DistanceY", 0, 2, 0, 1, Q("3.2 mm")))
sketch9.addConstraint(Sketcher.Constraint("DistanceY", -1, 1, 0, 2, Q("8.55 mm")))
sketch9.addConstraint(Sketcher.Constraint("DistanceX", -1, 1, 0, 2, Q("33.424399 mm")))
sketch9.setExpression("Constraints[8]", "Params.sketch9_width")
sketch9.setExpression("Constraints[9]", "Params.sketch9_height")
pocket4 = body.newObject("PartDesign::Pocket", "Pocket003")
pocket4.Profile = sketch9
pocket4.setExpression("Length", "Params.pocket4_length")

doc.recompute()
